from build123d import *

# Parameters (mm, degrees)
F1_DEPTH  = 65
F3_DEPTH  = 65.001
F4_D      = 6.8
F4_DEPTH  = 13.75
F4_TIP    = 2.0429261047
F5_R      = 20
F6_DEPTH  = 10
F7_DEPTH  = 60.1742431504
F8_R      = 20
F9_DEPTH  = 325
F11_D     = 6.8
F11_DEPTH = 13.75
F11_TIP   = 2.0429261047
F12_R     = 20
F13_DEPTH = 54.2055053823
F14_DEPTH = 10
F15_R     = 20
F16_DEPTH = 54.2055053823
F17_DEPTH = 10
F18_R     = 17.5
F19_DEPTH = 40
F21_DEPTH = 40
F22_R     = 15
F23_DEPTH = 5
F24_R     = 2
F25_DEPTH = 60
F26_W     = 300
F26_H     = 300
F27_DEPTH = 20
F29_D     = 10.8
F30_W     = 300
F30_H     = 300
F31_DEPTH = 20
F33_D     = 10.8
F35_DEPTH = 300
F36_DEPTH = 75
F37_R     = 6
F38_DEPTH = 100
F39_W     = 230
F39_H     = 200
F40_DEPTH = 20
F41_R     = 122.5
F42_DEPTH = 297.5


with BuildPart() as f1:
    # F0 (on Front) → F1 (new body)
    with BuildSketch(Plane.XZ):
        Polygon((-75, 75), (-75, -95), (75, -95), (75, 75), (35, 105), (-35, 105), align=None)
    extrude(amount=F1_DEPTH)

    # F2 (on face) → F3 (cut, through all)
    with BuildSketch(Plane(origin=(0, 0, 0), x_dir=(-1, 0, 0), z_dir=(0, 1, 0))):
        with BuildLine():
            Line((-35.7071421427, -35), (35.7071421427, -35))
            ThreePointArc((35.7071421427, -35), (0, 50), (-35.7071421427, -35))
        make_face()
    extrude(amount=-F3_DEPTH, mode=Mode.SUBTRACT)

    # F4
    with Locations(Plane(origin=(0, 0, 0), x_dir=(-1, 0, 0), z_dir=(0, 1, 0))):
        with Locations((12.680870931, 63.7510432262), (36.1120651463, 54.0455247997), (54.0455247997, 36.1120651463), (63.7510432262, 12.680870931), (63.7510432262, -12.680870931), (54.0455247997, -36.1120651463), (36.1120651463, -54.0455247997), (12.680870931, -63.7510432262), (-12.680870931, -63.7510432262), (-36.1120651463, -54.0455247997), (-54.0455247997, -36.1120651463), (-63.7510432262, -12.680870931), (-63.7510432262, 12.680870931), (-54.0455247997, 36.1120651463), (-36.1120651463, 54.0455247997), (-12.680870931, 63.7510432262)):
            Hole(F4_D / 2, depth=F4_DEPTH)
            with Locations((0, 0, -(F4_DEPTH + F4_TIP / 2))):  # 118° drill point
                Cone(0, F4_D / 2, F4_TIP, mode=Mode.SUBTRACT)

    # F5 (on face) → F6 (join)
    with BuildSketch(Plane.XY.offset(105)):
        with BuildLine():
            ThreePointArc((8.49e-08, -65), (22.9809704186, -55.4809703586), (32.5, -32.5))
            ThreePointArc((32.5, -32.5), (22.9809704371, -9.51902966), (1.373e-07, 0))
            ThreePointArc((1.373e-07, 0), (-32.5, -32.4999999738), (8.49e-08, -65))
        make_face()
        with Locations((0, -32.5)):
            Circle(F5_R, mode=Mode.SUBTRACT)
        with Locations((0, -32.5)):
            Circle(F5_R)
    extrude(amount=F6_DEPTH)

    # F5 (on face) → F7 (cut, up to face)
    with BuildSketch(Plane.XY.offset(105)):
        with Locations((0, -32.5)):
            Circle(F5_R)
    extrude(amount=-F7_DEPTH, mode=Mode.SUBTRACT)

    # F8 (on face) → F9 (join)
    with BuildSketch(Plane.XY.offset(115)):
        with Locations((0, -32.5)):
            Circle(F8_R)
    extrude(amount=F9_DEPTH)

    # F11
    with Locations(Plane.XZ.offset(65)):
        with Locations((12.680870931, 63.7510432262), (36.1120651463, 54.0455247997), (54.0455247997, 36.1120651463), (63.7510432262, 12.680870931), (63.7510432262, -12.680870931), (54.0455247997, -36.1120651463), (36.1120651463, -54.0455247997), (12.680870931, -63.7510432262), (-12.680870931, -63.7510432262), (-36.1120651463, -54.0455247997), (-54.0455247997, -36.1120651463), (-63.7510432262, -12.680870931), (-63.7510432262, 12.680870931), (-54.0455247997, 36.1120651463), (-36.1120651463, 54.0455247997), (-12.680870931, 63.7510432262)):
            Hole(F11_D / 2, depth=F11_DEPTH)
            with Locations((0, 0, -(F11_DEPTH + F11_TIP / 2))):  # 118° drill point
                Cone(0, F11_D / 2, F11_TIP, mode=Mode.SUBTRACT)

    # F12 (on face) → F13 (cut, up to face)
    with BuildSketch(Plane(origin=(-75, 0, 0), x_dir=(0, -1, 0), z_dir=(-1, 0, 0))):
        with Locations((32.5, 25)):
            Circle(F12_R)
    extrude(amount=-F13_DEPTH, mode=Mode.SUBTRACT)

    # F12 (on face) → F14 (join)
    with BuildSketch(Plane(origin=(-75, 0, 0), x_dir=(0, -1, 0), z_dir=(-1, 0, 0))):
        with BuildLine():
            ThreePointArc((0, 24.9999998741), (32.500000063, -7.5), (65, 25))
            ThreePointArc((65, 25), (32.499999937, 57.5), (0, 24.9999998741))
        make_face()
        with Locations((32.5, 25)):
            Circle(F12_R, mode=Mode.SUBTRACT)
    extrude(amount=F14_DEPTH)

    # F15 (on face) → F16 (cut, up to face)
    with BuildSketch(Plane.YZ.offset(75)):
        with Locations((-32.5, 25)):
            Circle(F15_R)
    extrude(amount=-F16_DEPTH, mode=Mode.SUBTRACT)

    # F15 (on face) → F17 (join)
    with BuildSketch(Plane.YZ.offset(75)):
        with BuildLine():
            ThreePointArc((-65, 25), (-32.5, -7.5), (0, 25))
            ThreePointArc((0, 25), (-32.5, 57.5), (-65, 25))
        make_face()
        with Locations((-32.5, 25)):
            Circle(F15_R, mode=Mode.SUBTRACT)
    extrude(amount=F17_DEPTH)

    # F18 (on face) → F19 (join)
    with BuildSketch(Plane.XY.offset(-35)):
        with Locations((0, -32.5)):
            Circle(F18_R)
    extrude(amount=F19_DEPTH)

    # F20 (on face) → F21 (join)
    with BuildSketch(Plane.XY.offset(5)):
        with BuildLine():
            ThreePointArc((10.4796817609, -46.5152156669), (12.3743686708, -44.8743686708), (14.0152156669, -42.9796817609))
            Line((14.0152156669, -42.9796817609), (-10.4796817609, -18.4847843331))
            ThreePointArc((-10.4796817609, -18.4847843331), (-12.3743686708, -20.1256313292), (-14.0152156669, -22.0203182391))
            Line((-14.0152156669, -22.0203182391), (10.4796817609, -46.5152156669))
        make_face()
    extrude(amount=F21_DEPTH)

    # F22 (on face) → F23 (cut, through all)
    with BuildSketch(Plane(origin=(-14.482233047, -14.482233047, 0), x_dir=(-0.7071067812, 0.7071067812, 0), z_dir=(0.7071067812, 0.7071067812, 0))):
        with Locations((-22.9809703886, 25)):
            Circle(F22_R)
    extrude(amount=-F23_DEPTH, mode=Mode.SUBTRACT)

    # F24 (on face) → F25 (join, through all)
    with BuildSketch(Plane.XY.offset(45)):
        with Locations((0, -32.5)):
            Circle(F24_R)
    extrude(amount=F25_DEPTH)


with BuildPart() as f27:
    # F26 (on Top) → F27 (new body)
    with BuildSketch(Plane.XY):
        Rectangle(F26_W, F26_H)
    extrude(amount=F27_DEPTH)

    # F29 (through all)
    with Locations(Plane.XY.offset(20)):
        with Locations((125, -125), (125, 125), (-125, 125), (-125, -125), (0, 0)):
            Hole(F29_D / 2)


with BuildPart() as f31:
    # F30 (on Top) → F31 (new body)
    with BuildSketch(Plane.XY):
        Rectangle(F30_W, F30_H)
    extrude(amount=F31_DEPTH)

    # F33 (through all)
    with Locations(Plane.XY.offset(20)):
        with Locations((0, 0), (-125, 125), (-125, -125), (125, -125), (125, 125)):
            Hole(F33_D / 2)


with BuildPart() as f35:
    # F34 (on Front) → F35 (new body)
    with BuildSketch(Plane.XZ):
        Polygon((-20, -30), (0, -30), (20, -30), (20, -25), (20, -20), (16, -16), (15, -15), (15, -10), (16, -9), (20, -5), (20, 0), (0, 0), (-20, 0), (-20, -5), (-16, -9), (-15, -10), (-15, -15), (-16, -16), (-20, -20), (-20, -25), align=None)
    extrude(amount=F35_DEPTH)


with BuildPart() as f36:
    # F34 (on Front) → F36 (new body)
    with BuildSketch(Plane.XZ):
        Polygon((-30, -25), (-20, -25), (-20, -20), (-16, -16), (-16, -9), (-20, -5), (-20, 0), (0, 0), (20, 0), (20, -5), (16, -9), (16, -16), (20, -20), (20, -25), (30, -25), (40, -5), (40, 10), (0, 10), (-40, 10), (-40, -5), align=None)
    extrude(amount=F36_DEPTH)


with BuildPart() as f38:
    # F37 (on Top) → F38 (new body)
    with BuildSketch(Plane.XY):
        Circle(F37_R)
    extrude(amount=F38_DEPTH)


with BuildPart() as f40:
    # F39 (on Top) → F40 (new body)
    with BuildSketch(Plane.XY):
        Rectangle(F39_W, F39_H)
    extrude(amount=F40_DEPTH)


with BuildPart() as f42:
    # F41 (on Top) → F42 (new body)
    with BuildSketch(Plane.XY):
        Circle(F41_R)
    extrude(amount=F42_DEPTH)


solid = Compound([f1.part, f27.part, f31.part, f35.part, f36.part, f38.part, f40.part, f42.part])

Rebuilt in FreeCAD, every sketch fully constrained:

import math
import FreeCAD as App
import Part
import Sketcher
from FreeCAD import Vector
Q = App.Units.Quantity


def add_polygon(sketch, points):
    """Adds a closed chain of lines whose ends are joined by coincident constraints."""
    first, n = sketch.GeometryCount, len(points)
    for a, b in zip(points, points[1:] + points[:1]):
        sketch.addGeometry(Part.LineSegment(App.Vector(*a, 0), App.Vector(*b, 0)), False)
    for i in range(n):
        sketch.addConstraint(Sketcher.Constraint("Coincident", first + i, 2, first + (i + 1) % n, 1))

doc = App.newDocument("Part")
params = doc.addObject("Spreadsheet::Sheet", "Params")
for row, (alias, value) in enumerate([
    ("sketch1_width", "150 mm"),
    ("sketch1_width2", "70 mm"),
    ("sketch1_height", "170 mm"),
    ("sketch1_length", "50 mm"),
    ("pad1_length", "65 mm"),
    ("sketch2_radius", "50 mm"),
    ("sketch3_diameter", "6.8 mm"),
    ("hole_diameter", "6.8 mm"),
    ("hole_depth", "13.75 mm"),
    ("sketch4_radius", "32.5 mm"),
    ("pad2_length", "10 mm"),
    ("sketch5_diameter", "40 mm"),
    ("pocket2_length", "60.174243 mm"),
    ("sketch6_diameter", "40 mm"),
    ("pad3_length", "325 mm"),
    ("sketch7_diameter", "6.8 mm"),
    ("hole2_diameter", "6.8 mm"),
    ("hole2_depth", "13.75 mm"),
    ("sketch8_diameter", "40 mm"),
    ("pocket3_length", "54.205505 mm"),
    ("sketch9_diameter", "65 mm"),
    ("sketch9_diameter2", "40 mm"),
    ("pad4_length", "10 mm"),
    ("sketch10_diameter", "40 mm"),
    ("pocket4_length", "54.205505 mm"),
    ("sketch11_diameter", "65 mm"),
    ("sketch11_diameter2", "40 mm"),
    ("pad5_length", "10 mm"),
    ("sketch12_diameter", "35 mm"),
    ("pad6_length", "40 mm"),
    ("sketch13_radius", "17.5 mm"),
    ("pad7_length", "40 mm"),
    ("sketch14_diameter", "30 mm"),
    ("pocket5_length", "5 mm"),
    ("sketch15_diameter", "4 mm"),
    ("sketch16_width", "300 mm"),
    ("pad9_length", "20 mm"),
    ("sketch17_diameter", "10.8 mm"),
    ("hole3_diameter", "10.8 mm"),
    ("sketch18_width", "300 mm"),
    ("pad10_length", "20 mm"),
    ("sketch19_diameter", "10.8 mm"),
    ("hole4_diameter", "10.8 mm"),
    ("sketch20_width", "40 mm"),
    ("sketch20_height", "10 mm"),
    ("sketch20_height2", "5 mm"),
    ("pad11_length", "300 mm"),
    ("sketch21_width", "10 mm"),
    ("sketch21_width2", "40 mm"),
    ("sketch21_width3", "80 mm"),
    ("sketch21_height", "5 mm"),
    ("sketch21_height2", "7 mm"),
    ("pad12_length", "75 mm"),
    ("sketch22_diameter", "12 mm"),
    ("pad13_length", "100 mm"),
    ("sketch23_width", "230 mm"),
    ("sketch23_height", "200 mm"),
    ("pad14_length", "20 mm"),
    ("sketch24_diameter", "245 mm"),
    ("pad15_length", "297.5 mm"),
], start=1):
    params.set(f"A{row}", alias)
    params.set(f"B{row}", "=" + value)
    params.setAlias(f"B{row}", alias)

body = doc.addObject("PartDesign::Body", "Body")

sketch1 = body.newObject("Sketcher::SketchObject", "Sketch")
sketch1.AttachmentSupport = (doc.getObject("XZ_Plane"), [""])
sketch1.MapMode = "FlatFace"
add_polygon(sketch1, [(-75, 75), (-75, -95), (75, -95), (75, 75), (35, 105), (-35, 105)])
sketch1.addConstraint([
    Sketcher.Constraint("Vertical", 0),
    Sketcher.Constraint("Horizontal", 1),
    Sketcher.Constraint("Vertical", 2),
    Sketcher.Constraint("Horizontal", 4),
    Sketcher.Constraint("Symmetric", 2, 2, 5, 2, -2),
    Sketcher.Constraint("Equal", 3, 5),
    Sketcher.Constraint("DistanceX", 1, 1, 1, 2, 150.0),
    Sketcher.Constraint("DistanceX", 4, 2, 4, 1, 70.0),
    Sketcher.Constraint("DistanceY", 0, 2, 0, 1, 170.0),
    Sketcher.Constraint("Distance", 3, 50.0),
    Sketcher.Constraint("DistanceY", 0, 2, -1, 1, 95.0),
])
sketch1.setExpression("Constraints[12]", "Params.sketch1_width")
sketch1.setExpression("Constraints[13]", "Params.sketch1_width2")
sketch1.setExpression("Constraints[14]", "Params.sketch1_height")
sketch1.setExpression("Constraints[15]", "Params.sketch1_length")
pad1 = body.newObject("PartDesign::Pad", "Pad")
pad1.Profile = sketch1
pad1.setExpression("Length", "Params.pad1_length")

sketch2 = body.newObject("Sketcher::SketchObject", "Sketch001")
sketch2.AttachmentSupport = (doc.getObject("XZ_Plane"), [""])
sketch2.MapMode = "FlatFace"
sketch2.addGeometry([
    Part.LineSegment(Vector(35.707142, -35, 0), Vector(-35.707142, -35, 0)),
    Part.ArcOfCircle(Part.Circle(Vector(0, 0, 0), Vector(0, 0, 1), 50), math.radians(-44.427004), math.radians(224.427004)),
], False)
sketch2.addConstraint([
    Sketcher.Constraint("Coincident", 0, 1, 1, 1),
    Sketcher.Constraint("Coincident", 1, 2, 0, 2),
    Sketcher.Constraint("Horizontal", 0),
    Sketcher.Constraint("Coincident", 1, 3, -1, 1),
    Sketcher.Constraint("Radius", 1, 50.0),
    Sketcher.Constraint("DistanceY", 0, 1, -1, 1, 35.0),
])
sketch2.setExpression("Constraints[4]", "Params.sketch2_radius")
pocket1 = body.newObject("PartDesign::Pocket", "Pocket")
pocket1.Profile = sketch2
pocket1.Type = "ThroughAll"
pocket1.Reversed = True

sketch3 = body.newObject("Sketcher::SketchObject", "Sketch002")
sketch3.AttachmentSupport = (doc.getObject("XZ_Plane"), [""])
sketch3.MapMode = "FlatFace"
sketch3.addGeometry([
    Part.Circle(Vector(-12.680871, 63.751043, 0), Vector(0, 0, 1), 3.4),
    Part.Circle(Vector(-36.112065, 54.045525, 0), Vector(0, 0, 1), 3.4),
    Part.Circle(Vector(-54.045525, 36.112065, 0), Vector(0, 0, 1), 3.4),
    Part.Circle(Vector(-63.751043, 12.680871, 0), Vector(0, 0, 1), 3.4),
    Part.Circle(Vector(-63.751043, -12.680871, 0), Vector(0, 0, 1), 3.4),
    Part.Circle(Vector(-54.045525, -36.112065, 0), Vector(0, 0, 1), 3.4),
    Part.Circle(Vector(-36.112065, -54.045525, 0), Vector(0, 0, 1), 3.4),
    Part.Circle(Vector(-12.680871, -63.751043, 0), Vector(0, 0, 1), 3.4),
    Part.Circle(Vector(12.680871, -63.751043, 0), Vector(0, 0, 1), 3.4),
    Part.Circle(Vector(36.112065, -54.045525, 0), Vector(0, 0, 1), 3.4),
    Part.Circle(Vector(54.045525, -36.112065, 0), Vector(0, 0, 1), 3.4),
    Part.Circle(Vector(63.751043, -12.680871, 0), Vector(0, 0, 1), 3.4),
    Part.Circle(Vector(63.751043, 12.680871, 0), Vector(0, 0, 1), 3.4),
    Part.Circle(Vector(54.045525, 36.112065, 0), Vector(0, 0, 1), 3.4),
    Part.Circle(Vector(36.112065, 54.045525, 0), Vector(0, 0, 1), 3.4),
    Part.Circle(Vector(12.680871, 63.751043, 0), Vector(0, 0, 1), 3.4),
], False)
sketch3.addConstraint([
    Sketcher.Constraint("Equal", 0, 1),
    Sketcher.Constraint("Equal", 1, 2),
    Sketcher.Constraint("Equal", 2, 3),
    Sketcher.Constraint("Equal", 3, 4),
    Sketcher.Constraint("Equal", 4, 5),
    Sketcher.Constraint("Equal", 5, 6),
    Sketcher.Constraint("Equal", 6, 7),
    Sketcher.Constraint("Equal", 7, 8),
    Sketcher.Constraint("Equal", 8, 9),
    Sketcher.Constraint("Equal", 9, 10),
    Sketcher.Constraint("Equal", 10, 11),
    Sketcher.Constraint("Equal", 11, 12),
    Sketcher.Constraint("Equal", 12, 13),
    Sketcher.Constraint("Equal", 13, 14),
    Sketcher.Constraint("Equal", 14, 15),
    Sketcher.Constraint("Symmetric", 0, 3, 8, 3, -1, 1),
    Sketcher.Constraint("Symmetric", 1, 3, 9, 3, -1, 1),
    Sketcher.Constraint("Symmetric", 2, 3, 10, 3, -1, 1),
    Sketcher.Constraint("Symmetric", 3, 3, 11, 3, -1, 1),
    Sketcher.Constraint("Symmetric", 4, 3, 12, 3, -1, 1),
    Sketcher.Constraint("Symmetric", 5, 3, 13, 3, -1, 1),
    Sketcher.Constraint("Symmetric", 6, 3, 14, 3, -1, 1),
    Sketcher.Constraint("Symmetric", 7, 3, 15, 3, -1, 1),
    Sketcher.Constraint("Symmetric", 7, 3, 8, 3, -2),
    Sketcher.Constraint("Symmetric", 6, 3, 9, 3, -2),
    Sketcher.Constraint("Symmetric", 5, 3, 10, 3, -2),
    Sketcher.Constraint("Symmetric", 4, 3, 11, 3, -2),
    Sketcher.Constraint("Diameter", 0, 6.8),
    Sketcher.Constraint("DistanceX", 0, 3, -1, 1, 12.680871),
    Sketcher.Constraint("DistanceY", -1, 1, 3, 3, 12.680871),
    Sketcher.Constraint("DistanceY", 1, 3, 0, 3, 9.705518),
    Sketcher.Constraint("DistanceX", 2, 3, 1, 3, 17.93346),
    Sketcher.Constraint("DistanceY", 2, 3, 1, 3, 17.93346),
    Sketcher.Constraint("DistanceX", 3, 3, 2, 3, 9.705518),
    Sketcher.Constraint("DistanceY", 5, 3, 2, 3, 72.22413),
    Sketcher.Constraint("DistanceX", 6, 3, 9, 3, 72.22413),
])
sketch3.setExpression("Constraints[27]", "Params.sketch3_diameter")
doc.recompute()
hole = body.newObject("PartDesign::Hole", "Hole")
hole.Profile = sketch3
hole.ThreadType = "None"
hole.setExpression("Diameter", "Params.hole_diameter")
hole.DepthType = "Dimension"
hole.setExpression("Depth", "Params.hole_depth")
hole.DrillPoint = "Angled"
hole.DrillPointAngle = 118
hole.Reversed = True

sketch4 = body.newObject("Sketcher::SketchObject", "Sketch003")
sketch4.AttachmentSupport = (doc.getObject("XY_Plane"), [""])
sketch4.MapMode = "FlatFace"
sketch4.AttachmentOffset = App.Placement(Vector(0, 0, 105), App.Rotation())
sketch4.addGeometry([
    Part.ArcOfCircle(Part.Circle(Vector(0, -32.5, 0), Vector(0, 0, 1), 32.5), math.radians(-90), math.radians(0)),
    Part.ArcOfCircle(Part.Circle(Vector(0, -32.5, 0), Vector(0, 0, 1), 32.5), math.radians(0), math.radians(90)),
    Part.ArcOfCircle(Part.Circle(Vector(0, -32.5, 0), Vector(0, 0, 1), 32.5), math.radians(90), math.radians(270)),
], False)
sketch4.addConstraint([
    Sketcher.Constraint("Tangent", 0, 2, 1, 1),
    Sketcher.Constraint("Tangent", 1, 2, 2, 1),
    Sketcher.Constraint("Tangent", 2, 2, 0, 1),
    Sketcher.Constraint("Coincident", 1, 2, -1, 1),
    Sketcher.Constraint("PointOnObject", 0, 3, -2),
    Sketcher.Constraint("PointOnObject", 2, 2, -2),
    Sketcher.Constraint("Horizontal", 2, 3, 0, 2),
    Sketcher.Constraint("Radius", 0, 32.5),
])
sketch4.setExpression("Constraints[7]", "Params.sketch4_radius")
pad2 = body.newObject("PartDesign::Pad", "Pad001")
pad2.Profile = sketch4
pad2.setExpression("Length", "Params.pad2_length")

sketch5 = body.newObject("Sketcher::SketchObject", "Sketch004")
sketch5.AttachmentSupport = (doc.getObject("XY_Plane"), [""])
sketch5.MapMode = "FlatFace"
sketch5.AttachmentOffset = App.Placement(Vector(0, 0, 105), App.Rotation())
sketch5.addGeometry(Part.Circle(Vector(0, -32.5, 0), Vector(0, 0, 1), 20), False)
sketch5.addConstraint([
    Sketcher.Constraint("PointOnObject", 0, 3, -2),
    Sketcher.Constraint("Diameter", 0, 40.0),
    Sketcher.Constraint("DistanceY", 0, 3, -1, 1, 32.5),
])
sketch5.setExpression("Constraints[1]", "Params.sketch5_diameter")
pocket2 = body.newObject("PartDesign::Pocket", "Pocket001")
pocket2.Profile = sketch5
pocket2.setExpression("Length", "Params.pocket2_length")

sketch6 = body.newObject("Sketcher::SketchObject", "Sketch005")
sketch6.AttachmentSupport = (doc.getObject("XY_Plane"), [""])
sketch6.MapMode = "FlatFace"
sketch6.AttachmentOffset = App.Placement(Vector(0, 0, 115), App.Rotation())
sketch6.addGeometry(Part.Circle(Vector(0, -32.5, 0), Vector(0, 0, 1), 20), False)
sketch6.addConstraint([
    Sketcher.Constraint("PointOnObject", 0, 3, -2),
    Sketcher.Constraint("Diameter", 0, 40.0),
    Sketcher.Constraint("DistanceY", 0, 3, -1, 1, 32.5),
])
sketch6.setExpression("Constraints[1]", "Params.sketch6_diameter")
pad3 = body.newObject("PartDesign::Pad", "Pad002")
pad3.Profile = sketch6
pad3.setExpression("Length", "Params.pad3_length")

sketch7 = body.newObject("Sketcher::SketchObject", "Sketch006")
sketch7.AttachmentSupport = (doc.getObject("XZ_Plane"), [""])
sketch7.MapMode = "FlatFace"
sketch7.AttachmentOffset = App.Placement(Vector(0, 0, 65), App.Rotation())
sketch7.addGeometry([
    Part.Circle(Vector(12.680871, 63.751043, 0), Vector(0, 0, 1), 3.4),
    Part.Circle(Vector(36.112065, 54.045525, 0), Vector(0, 0, 1), 3.4),
    Part.Circle(Vector(54.045525, 36.112065, 0), Vector(0, 0, 1), 3.4),
    Part.Circle(Vector(63.751043, 12.680871, 0), Vector(0, 0, 1), 3.4),
    Part.Circle(Vector(63.751043, -12.680871, 0), Vector(0, 0, 1), 3.4),
    Part.Circle(Vector(54.045525, -36.112065, 0), Vector(0, 0, 1), 3.4),
    Part.Circle(Vector(36.112065, -54.045525, 0), Vector(0, 0, 1), 3.4),
    Part.Circle(Vector(12.680871, -63.751043, 0), Vector(0, 0, 1), 3.4),
    Part.Circle(Vector(-12.680871, -63.751043, 0), Vector(0, 0, 1), 3.4),
    Part.Circle(Vector(-36.112065, -54.045525, 0), Vector(0, 0, 1), 3.4),
    Part.Circle(Vector(-54.045525, -36.112065, 0), Vector(0, 0, 1), 3.4),
    Part.Circle(Vector(-63.751043, -12.680871, 0), Vector(0, 0, 1), 3.4),
    Part.Circle(Vector(-63.751043, 12.680871, 0), Vector(0, 0, 1), 3.4),
    Part.Circle(Vector(-54.045525, 36.112065, 0), Vector(0, 0, 1), 3.4),
    Part.Circle(Vector(-36.112065, 54.045525, 0), Vector(0, 0, 1), 3.4),
    Part.Circle(Vector(-12.680871, 63.751043, 0), Vector(0, 0, 1), 3.4),
], False)
sketch7.addConstraint([
    Sketcher.Constraint("Equal", 0, 1),
    Sketcher.Constraint("Equal", 1, 2),
    Sketcher.Constraint("Equal", 2, 3),
    Sketcher.Constraint("Equal", 3, 4),
    Sketcher.Constraint("Equal", 4, 5),
    Sketcher.Constraint("Equal", 5, 6),
    Sketcher.Constraint("Equal", 6, 7),
    Sketcher.Constraint("Equal", 7, 8),
    Sketcher.Constraint("Equal", 8, 9),
    Sketcher.Constraint("Equal", 9, 10),
    Sketcher.Constraint("Equal", 10, 11),
    Sketcher.Constraint("Equal", 11, 12),
    Sketcher.Constraint("Equal", 12, 13),
    Sketcher.Constraint("Equal", 13, 14),
    Sketcher.Constraint("Equal", 14, 15),
    Sketcher.Constraint("Symmetric", 0, 3, 8, 3, -1, 1),
    Sketcher.Constraint("Symmetric", 1, 3, 9, 3, -1, 1),
    Sketcher.Constraint("Symmetric", 2, 3, 10, 3, -1, 1),
    Sketcher.Constraint("Symmetric", 3, 3, 11, 3, -1, 1),
    Sketcher.Constraint("Symmetric", 4, 3, 12, 3, -1, 1),
    Sketcher.Constraint("Symmetric", 5, 3, 13, 3, -1, 1),
    Sketcher.Constraint("Symmetric", 6, 3, 14, 3, -1, 1),
    Sketcher.Constraint("Symmetric", 7, 3, 15, 3, -1, 1),
    Sketcher.Constraint("Symmetric", 7, 3, 8, 3, -2),
    Sketcher.Constraint("Symmetric", 6, 3, 9, 3, -2),
    Sketcher.Constraint("Symmetric", 5, 3, 10, 3, -2),
    Sketcher.Constraint("Symmetric", 4, 3, 11, 3, -2),
    Sketcher.Constraint("Diameter", 0, 6.8),
    Sketcher.Constraint("DistanceX", -1, 1, 0, 3, 12.680871),
    Sketcher.Constraint("DistanceY", -1, 1, 3, 3, 12.680871),
    Sketcher.Constraint("DistanceY", 1, 3, 0, 3, 9.705518),
    Sketcher.Constraint("DistanceX", 1, 3, 2, 3, 17.93346),
    Sketcher.Constraint("DistanceY", 2, 3, 1, 3, 17.93346),
    Sketcher.Constraint("DistanceX", 2, 3, 3, 3, 9.705518),
    Sketcher.Constraint("DistanceY", 5, 3, 2, 3, 72.22413),
    Sketcher.Constraint("DistanceX", 9, 3, 6, 3, 72.22413),
])
sketch7.setExpression("Constraints[27]", "Params.sketch7_diameter")
doc.recompute()
hole2 = body.newObject("PartDesign::Hole", "Hole001")
hole2.Profile = sketch7
hole2.ThreadType = "None"
hole2.setExpression("Diameter", "Params.hole2_diameter")
hole2.DepthType = "Dimension"
hole2.setExpression("Depth", "Params.hole2_depth")
hole2.DrillPoint = "Angled"
hole2.DrillPointAngle = 118

sketch8 = body.newObject("Sketcher::SketchObject", "Sketch007")
sketch8.AttachmentSupport = (doc.getObject("YZ_Plane"), [""])
sketch8.MapMode = "FlatFace"
sketch8.AttachmentOffset = App.Placement(Vector(0, 0, -75), App.Rotation())
sketch8.addGeometry(Part.Circle(Vector(-32.5, 25, 0), Vector(0, 0, 1), 20), False)
sketch8.addConstraint([
    Sketcher.Constraint("Diameter", 0, 40.0),
    Sketcher.Constraint("DistanceY", -1, 1, 0, 3, 25.0),
    Sketcher.Constraint("DistanceX", 0, 3, -1, 1, 32.5),
])
sketch8.setExpression("Constraints[0]", "Params.sketch8_diameter")
pocket3 = body.newObject("PartDesign::Pocket", "Pocket002")
pocket3.Profile = sketch8
pocket3.setExpression("Length", "Params.pocket3_length")
pocket3.Reversed = True

sketch9 = body.newObject("Sketcher::SketchObject", "Sketch008")
sketch9.AttachmentSupport = (doc.getObject("YZ_Plane"), [""])
sketch9.MapMode = "FlatFace"
sketch9.AttachmentOffset = App.Placement(Vector(0, 0, -75), App.Rotation())
sketch9.addGeometry([
    Part.Circle(Vector(-32.5, 25, 0), Vector(0, 0, 1), 32.5),
    Part.Circle(Vector(-32.5, 25, 0), Vector(0, 0, 1), 20),
], False)
sketch9.addConstraint([
    Sketcher.Constraint("Coincident", 1, 3, 0, 3),
    Sketcher.Constraint("Diameter", 0, 65.0),
    Sketcher.Constraint("Diameter", 1, 40.0),
    Sketcher.Constraint("DistanceY", -1, 1, 0, 3, 25.0),
    Sketcher.Constraint("DistanceX", 0, 3, -1, 1, 32.5),
])
sketch9.setExpression("Constraints[1]", "Params.sketch9_diameter")
sketch9.setExpression("Constraints[2]", "Params.sketch9_diameter2")
pad4 = body.newObject("PartDesign::Pad", "Pad003")
pad4.Profile = sketch9
pad4.setExpression("Length", "Params.pad4_length")
pad4.Reversed = True

sketch10 = body.newObject("Sketcher::SketchObject", "Sketch009")
sketch10.AttachmentSupport = (doc.getObject("YZ_Plane"), [""])
sketch10.MapMode = "FlatFace"
sketch10.AttachmentOffset = App.Placement(Vector(0, 0, 75), App.Rotation())
sketch10.addGeometry(Part.Circle(Vector(-32.5, 25, 0), Vector(0, 0, 1), 20), False)
sketch10.addConstraint([
    Sketcher.Constraint("Diameter", 0, 40.0),
    Sketcher.Constraint("DistanceY", -1, 1, 0, 3, 25.0),
    Sketcher.Constraint("DistanceX", 0, 3, -1, 1, 32.5),
])
sketch10.setExpression("Constraints[0]", "Params.sketch10_diameter")
pocket4 = body.newObject("PartDesign::Pocket", "Pocket003")
pocket4.Profile = sketch10
pocket4.setExpression("Length", "Params.pocket4_length")

sketch11 = body.newObject("Sketcher::SketchObject", "Sketch010")
sketch11.AttachmentSupport = (doc.getObject("YZ_Plane"), [""])
sketch11.MapMode = "FlatFace"
sketch11.AttachmentOffset = App.Placement(Vector(0, 0, 75), App.Rotation())
sketch11.addGeometry([
    Part.Circle(Vector(-32.5, 25, 0), Vector(0, 0, 1), 32.5),
    Part.Circle(Vector(-32.5, 25, 0), Vector(0, 0, 1), 20),
], False)
sketch11.addConstraint([
    Sketcher.Constraint("Coincident", 1, 3, 0, 3),
    Sketcher.Constraint("Diameter", 0, 65.0),
    Sketcher.Constraint("Diameter", 1, 40.0),
    Sketcher.Constraint("DistanceY", -1, 1, 0, 3, 25.0),
    Sketcher.Constraint("DistanceX", 0, 3, -1, 1, 32.5),
])
sketch11.setExpression("Constraints[1]", "Params.sketch11_diameter")
sketch11.setExpression("Constraints[2]", "Params.sketch11_diameter2")
pad5 = body.newObject("PartDesign::Pad", "Pad004")
pad5.Profile = sketch11
pad5.setExpression("Length", "Params.pad5_length")

sketch12 = body.newObject("Sketcher::SketchObject", "Sketch011")
sketch12.AttachmentSupport = (doc.getObject("XY_Plane"), [""])
sketch12.MapMode = "FlatFace"
sketch12.AttachmentOffset = App.Placement(Vector(0, 0, -35), App.Rotation())
sketch12.addGeometry(Part.Circle(Vector(0, -32.5, 0), Vector(0, 0, 1), 17.5), False)
sketch12.addConstraint([
    Sketcher.Constraint("PointOnObject", 0, 3, -2),
    Sketcher.Constraint("Diameter", 0, 35.0),
    Sketcher.Constraint("DistanceY", 0, 3, -1, 1, 32.5),
])
sketch12.setExpression("Constraints[1]", "Params.sketch12_diameter")
pad6 = body.newObject("PartDesign::Pad", "Pad005")
pad6.Profile = sketch12
pad6.setExpression("Length", "Params.pad6_length")

sketch13 = body.newObject("Sketcher::SketchObject", "Sketch012")
sketch13.AttachmentSupport = (doc.getObject("XY_Plane"), [""])
sketch13.MapMode = "FlatFace"
sketch13.AttachmentOffset = App.Placement(Vector(0, 0, 5), App.Rotation())
sketch13.addGeometry([
    Part.ArcOfCircle(Part.Circle(Vector(0, -32.5, 0), Vector(0, 0, 1), 17.5), math.radians(-53.213211), math.radians(-36.786789)),
    Part.LineSegment(Vector(14.015216, -42.979682, 0), Vector(-10.479682, -18.484784, 0)),
    Part.ArcOfCircle(Part.Circle(Vector(0, -32.5, 0), Vector(0, 0, 1), 17.5), math.radians(126.786789), math.radians(143.213211)),
    Part.LineSegment(Vector(-14.015216, -22.020318, 0), Vector(10.479682, -46.515216, 0)),
], False)
sketch13.addConstraint([
    Sketcher.Constraint("Coincident", 0, 2, 1, 1),
    Sketcher.Constraint("Coincident", 1, 2, 2, 1),
    Sketcher.Constraint("Coincident", 2, 2, 3, 1),
    Sketcher.Constraint("Coincident", 3, 2, 0, 1),
    Sketcher.Constraint("Coincident", 2, 3, 0, 3),
    Sketcher.Constraint("Equal", 0, 2),
    Sketcher.Constraint("PointOnObject", 0, 3, -2),
    Sketcher.Constraint("Parallel", 1, 3),
    Sketcher.Constraint("Equal", 1, 3),
    Sketcher.Constraint("Radius", 0, 17.5),
    Sketcher.Constraint("Angle", 1, Q("135 deg")),
    Sketcher.Constraint("DistanceY", 0, 3, -1, 1, 32.5),
    Sketcher.Constraint("DistanceY", 0, 2, -1, 1, 42.979682),
])
sketch13.setExpression("Constraints[9]", "Params.sketch13_radius")
pad7 = body.newObject("PartDesign::Pad", "Pad006")
pad7.Profile = sketch13
pad7.setExpression("Length", "Params.pad7_length")

sketch14 = body.newObject("Sketcher::SketchObject", "Sketch013")
sketch14.Placement = App.Placement(Vector(-14.482233, -14.482233, 0), App.Rotation(Vector(-0.707106781, 0.707106781, 0), Vector(0, 0, 0.999999999), Vector(0.707106781, 0.707106781, 0), "ZXY"))
sketch14.addGeometry(Part.Circle(Vector(-22.98097, 25, 0), Vector(0, 0, 1), 15), False)
sketch14.addConstraint([
    Sketcher.Constraint("Diameter", 0, 30.0),
    Sketcher.Constraint("DistanceY", -1, 1, 0, 3, 25.0),
    Sketcher.Constraint("DistanceX", 0, 3, -1, 1, 22.98097),
])
sketch14.setExpression("Constraints[0]", "Params.sketch14_diameter")
pocket5 = body.newObject("PartDesign::Pocket", "Pocket004")
pocket5.Profile = sketch14
pocket5.setExpression("Length", "Params.pocket5_length")

sketch15 = body.newObject("Sketcher::SketchObject", "Sketch014")
sketch15.AttachmentSupport = (doc.getObject("XY_Plane"), [""])
sketch15.MapMode = "FlatFace"
sketch15.AttachmentOffset = App.Placement(Vector(0, 0, 45), App.Rotation())
sketch15.addGeometry(Part.Circle(Vector(0, -32.5, 0), Vector(0, 0, 1), 2), False)
sketch15.addConstraint([
    Sketcher.Constraint("PointOnObject", 0, 3, -2),
    Sketcher.Constraint("Diameter", 0, 4.0),
    Sketcher.Constraint("DistanceY", 0, 3, -1, 1, 32.5),
])
sketch15.setExpression("Constraints[1]", "Params.sketch15_diameter")
pad8 = body.newObject("PartDesign::Pad", "Pad007")
pad8.Profile = sketch15
pad8.Type = "UpToLast"
body2 = doc.addObject("PartDesign::Body", "Body001")

sketch16 = body2.newObject("Sketcher::SketchObject", "Sketch015")
sketch16.AttachmentSupport = (doc.getObject("XY_Plane001"), [""])
sketch16.MapMode = "FlatFace"
add_polygon(sketch16, [(-150, 150), (-150, -150), (150, -150), (150, 150)])
sketch16.addConstraint([
    Sketcher.Constraint("Vertical", 0),
    Sketcher.Constraint("Horizontal", 1),
    Sketcher.Constraint("Vertical", 2),
    Sketcher.Constraint("Horizontal", 3),
    Sketcher.Constraint("Symmetric", 0, 2, 2, 2, -1, 1),
    Sketcher.Constraint("Equal", 3, 0),
    Sketcher.Constraint("DistanceX", 1, 1, 1, 2, 300.0),
])
sketch16.setExpression("Constraints[10]", "Params.sketch16_width")
pad9 = body2.newObject("PartDesign::Pad", "Pad008")
pad9.Profile = sketch16
pad9.setExpression("Length", "Params.pad9_length")

sketch17 = body2.newObject("Sketcher::SketchObject", "Sketch016")
sketch17.AttachmentSupport = (doc.getObject("XY_Plane001"), [""])
sketch17.MapMode = "FlatFace"
sketch17.AttachmentOffset = App.Placement(Vector(0, 0, 20), App.Rotation())
sketch17.addGeometry([
    Part.Circle(Vector(125, -125, 0), Vector(0, 0, 1), 5.4),
    Part.Circle(Vector(125, 125, 0), Vector(0, 0, 1), 5.4),
    Part.Circle(Vector(-125, 125, 0), Vector(0, 0, 1), 5.4),
    Part.Circle(Vector(-125, -125, 0), Vector(0, 0, 1), 5.4),
    Part.Circle(Vector(0, 0, 0), Vector(0, 0, 1), 5.4),
], False)
sketch17.addConstraint([
    Sketcher.Constraint("Coincident", 4, 3, -1, 1),
    Sketcher.Constraint("Equal", 0, 1),
    Sketcher.Constraint("Equal", 1, 2),
    Sketcher.Constraint("Equal", 2, 3),
    Sketcher.Constraint("Equal", 3, 4),
    Sketcher.Constraint("Symmetric", 0, 3, 2, 3, -1, 1),
    Sketcher.Constraint("Symmetric", 1, 3, 3, 3, -1, 1),
    Sketcher.Constraint("Symmetric", 1, 3, 2, 3, -2),
    Sketcher.Constraint("Diameter", 0, 10.8),
    Sketcher.Constraint("DistanceX", -1, 1, 0, 3, 125.0),
    Sketcher.Constraint("DistanceY", 0, 3, -1, 1, 125.0),
])
sketch17.setExpression("Constraints[8]", "Params.sketch17_diameter")
doc.recompute()
hole3 = body2.newObject("PartDesign::Hole", "Hole002")
hole3.Profile = sketch17
hole3.ThreadType = "None"
hole3.setExpression("Diameter", "Params.hole3_diameter")
hole3.DepthType = "ThroughAll"
body3 = doc.addObject("PartDesign::Body", "Body002")

sketch18 = body3.newObject("Sketcher::SketchObject", "Sketch017")
sketch18.AttachmentSupport = (doc.getObject("XY_Plane002"), [""])
sketch18.MapMode = "FlatFace"
add_polygon(sketch18, [(-150, 150), (-150, -150), (150, -150), (150, 150)])
sketch18.addConstraint([
    Sketcher.Constraint("Vertical", 0),
    Sketcher.Constraint("Horizontal", 1),
    Sketcher.Constraint("Vertical", 2),
    Sketcher.Constraint("Horizontal", 3),
    Sketcher.Constraint("Symmetric", 0, 2, 2, 2, -1, 1),
    Sketcher.Constraint("Equal", 3, 0),
    Sketcher.Constraint("DistanceX", 1, 1, 1, 2, 300.0),
])
sketch18.setExpression("Constraints[10]", "Params.sketch18_width")
pad10 = body3.newObject("PartDesign::Pad", "Pad009")
pad10.Profile = sketch18
pad10.setExpression("Length", "Params.pad10_length")

sketch19 = body3.newObject("Sketcher::SketchObject", "Sketch018")
sketch19.AttachmentSupport = (doc.getObject("XY_Plane002"), [""])
sketch19.MapMode = "FlatFace"
sketch19.AttachmentOffset = App.Placement(Vector(0, 0, 20), App.Rotation())
sketch19.addGeometry([
    Part.Circle(Vector(0, 0, 0), Vector(0, 0, 1), 5.4),
    Part.Circle(Vector(-125, 125, 0), Vector(0, 0, 1), 5.4),
    Part.Circle(Vector(-125, -125, 0), Vector(0, 0, 1), 5.4),
    Part.Circle(Vector(125, -125, 0), Vector(0, 0, 1), 5.4),
    Part.Circle(Vector(125, 125, 0), Vector(0, 0, 1), 5.4),
], False)
sketch19.addConstraint([
    Sketcher.Constraint("Coincident", 0, 3, -1, 1),
    Sketcher.Constraint("Equal", 0, 1),
    Sketcher.Constraint("Equal", 1, 2),
    Sketcher.Constraint("Equal", 2, 3),
    Sketcher.Constraint("Equal", 3, 4),
    Sketcher.Constraint("Symmetric", 1, 3, 3, 3, -1, 1),
    Sketcher.Constraint("Symmetric", 2, 3, 4, 3, -1, 1),
    Sketcher.Constraint("Symmetric", 2, 3, 3, 3, -2),
    Sketcher.Constraint("Diameter", 0, 10.8),
    Sketcher.Constraint("DistanceX", 1, 3, -1, 1, 125.0),
    Sketcher.Constraint("DistanceY", -1, 1, 1, 3, 125.0),
])
sketch19.setExpression("Constraints[8]", "Params.sketch19_diameter")
doc.recompute()
hole4 = body3.newObject("PartDesign::Hole", "Hole003")
hole4.Profile = sketch19
hole4.ThreadType = "None"
hole4.setExpression("Diameter", "Params.hole4_diameter")
hole4.DepthType = "ThroughAll"
body4 = doc.addObject("PartDesign::Body", "Body003")

sketch20 = body4.newObject("Sketcher::SketchObject", "Sketch019")
sketch20.AttachmentSupport = (doc.getObject("XZ_Plane003"), [""])
sketch20.MapMode = "FlatFace"
add_polygon(sketch20, [(-20, -30), (20, -30), (20, -20), (15, -15), (15, -10), (20, -5), (20, 0), (-20, 0), (-20, -5), (-15, -10), (-15, -15), (-20, -20)])
sketch20.addConstraint([
    Sketcher.Constraint("Horizontal", 0),
    Sketcher.Constraint("Vertical", 1),
    Sketcher.Constraint("Vertical", 3),
    Sketcher.Constraint("Vertical", 5),
    Sketcher.Constraint("Horizontal", 6),
    Sketcher.Constraint("Vertical", 7),
    Sketcher.Constraint("Vertical", 9),
    Sketcher.Constraint("Vertical", 11),
    Sketcher.Constraint("Symmetric", 5, 2, 6, 2, -1, 1),
    Sketcher.Constraint("Symmetric", 3, 2, 8, 2, -2),
    Sketcher.Constraint("Symmetric", 1, 2, 10, 2, -2),
    Sketcher.Constraint("Perpendicular", 2, 4),
    Sketcher.Constraint("Perpendicular", 4, 8),
    Sketcher.Constraint("Perpendicular", 8, 10),
    Sketcher.Constraint("Horizontal", 4, 2, 7, 2),
    Sketcher.Constraint("Vertical", 1, 2, 4, 2),
    Sketcher.Constraint("Equal", 3, 5),
    Sketcher.Constraint("DistanceX", 0, 1, 0, 2, 40.0),
    Sketcher.Constraint("DistanceY", 1, 1, 1, 2, 10.0),
    Sketcher.Constraint("DistanceY", 3, 1, 3, 2, 5.0),
    Sketcher.Constraint("DistanceY", 0, 2, -1, 1, 30.0),
])
sketch20.setExpression("Constraints[29]", "Params.sketch20_width")
sketch20.setExpression("Constraints[30]", "Params.sketch20_height")
sketch20.setExpression("Constraints[31]", "Params.sketch20_height2")
pad11 = body4.newObject("PartDesign::Pad", "Pad010")
pad11.Profile = sketch20
pad11.setExpression("Length", "Params.pad11_length")
body5 = doc.addObject("PartDesign::Body", "Body004")

sketch21 = body5.newObject("Sketcher::SketchObject", "Sketch020")
sketch21.AttachmentSupport = (doc.getObject("XZ_Plane004"), [""])
sketch21.MapMode = "FlatFace"
add_polygon(sketch21, [(-30, -25), (-20, -25), (-20, -20), (-16, -16), (-16, -9), (-20, -5), (-20, 0), (20, 0), (20, -5), (16, -9), (16, -16), (20, -20), (20, -25), (30, -25), (40, -5), (40, 10), (-40, 10), (-40, -5)])
sketch21.addConstraint([
    Sketcher.Constraint("Horizontal", 0),
    Sketcher.Constraint("Vertical", 1),
    Sketcher.Constraint("Vertical", 3),
    Sketcher.Constraint("Vertical", 5),
    Sketcher.Constraint("Horizontal", 6),
    Sketcher.Constraint("Vertical", 7),
    Sketcher.Constraint("Vertical", 9),
    Sketcher.Constraint("Vertical", 11),
    Sketcher.Constraint("Horizontal", 12),
    Sketcher.Constraint("Vertical", 14),
    Sketcher.Constraint("Horizontal", 15),
    Sketcher.Constraint("Vertical", 16),
    Sketcher.Constraint("Symmetric", 5, 2, 6, 2, -1, 1),
    Sketcher.Constraint("Symmetric", 3, 2, 8, 2, -2),
    Sketcher.Constraint("Symmetric", 1, 2, 10, 2, -2),
    Sketcher.Constraint("Symmetric", 13, 2, 16, 2, -2),
    Sketcher.Constraint("Symmetric", 12, 2, 17, 2, -2),
    Sketcher.Constraint("Perpendicular", 2, 4),
    Sketcher.Constraint("Perpendicular", 4, 8),
    Sketcher.Constraint("Perpendicular", 8, 10),
    Sketcher.Constraint("Horizontal", 4, 2, 7, 2),
    Sketcher.Constraint("Horizontal", 7, 2, 13, 2),
    Sketcher.Constraint("Vertical", 1, 2, 4, 2),
    Sketcher.Constraint("Equal", 1, 5),
    Sketcher.Constraint("DistanceX", 0, 1, 0, 2, 10.0),
    Sketcher.Constraint("DistanceX", 6, 1, 6, 2, 40.0),
    Sketcher.Constraint("DistanceX", 15, 2, 15, 1, 80.0),
    Sketcher.Constraint("DistanceY", 1, 1, 1, 2, 5.0),
    Sketcher.Constraint("DistanceY", 3, 1, 3, 2, 7.0),
    Sketcher.Constraint("DistanceY", 14, 1, 14, 2, 15.0),
    Sketcher.Constraint("DistanceY", 0, 2, -1, 1, 25.0),
])
sketch21.setExpression("Constraints[42]", "Params.sketch21_width")
sketch21.setExpression("Constraints[43]", "Params.sketch21_width2")
sketch21.setExpression("Constraints[44]", "Params.sketch21_width3")
sketch21.setExpression("Constraints[45]", "Params.sketch21_height")
sketch21.setExpression("Constraints[46]", "Params.sketch21_height2")
pad12 = body5.newObject("PartDesign::Pad", "Pad011")
pad12.Profile = sketch21
pad12.setExpression("Length", "Params.pad12_length")
body6 = doc.addObject("PartDesign::Body", "Body005")

sketch22 = body6.newObject("Sketcher::SketchObject", "Sketch021")
sketch22.AttachmentSupport = (doc.getObject("XY_Plane005"), [""])
sketch22.MapMode = "FlatFace"
sketch22.addGeometry(Part.Circle(Vector(0, 0, 0), Vector(0, 0, 1), 6), False)
sketch22.addConstraint([
    Sketcher.Constraint("Coincident", 0, 3, -1, 1),
    Sketcher.Constraint("Diameter", 0, 12.0),
])
sketch22.setExpression("Constraints[1]", "Params.sketch22_diameter")
pad13 = body6.newObject("PartDesign::Pad", "Pad012")
pad13.Profile = sketch22
pad13.setExpression("Length", "Params.pad13_length")
body7 = doc.addObject("PartDesign::Body", "Body006")

sketch23 = body7.newObject("Sketcher::SketchObject", "Sketch022")
sketch23.AttachmentSupport = (doc.getObject("XY_Plane006"), [""])
sketch23.MapMode = "FlatFace"
add_polygon(sketch23, [(-115, 100), (-115, -100), (115, -100), (115, 100)])
sketch23.addConstraint([
    Sketcher.Constraint("Vertical", 0),
    Sketcher.Constraint("Horizontal", 1),
    Sketcher.Constraint("Vertical", 2),
    Sketcher.Constraint("Horizontal", 3),
    Sketcher.Constraint("Symmetric", 0, 2, 2, 2, -1, 1),
    Sketcher.Constraint("DistanceX", 1, 1, 1, 2, 230.0),
    Sketcher.Constraint("DistanceY", 0, 2, 0, 1, 200.0),
])
sketch23.setExpression("Constraints[9]", "Params.sketch23_width")
sketch23.setExpression("Constraints[10]", "Params.sketch23_height")
pad14 = body7.newObject("PartDesign::Pad", "Pad013")
pad14.Profile = sketch23
pad14.setExpression("Length", "Params.pad14_length")
body8 = doc.addObject("PartDesign::Body", "Body007")

sketch24 = body8.newObject("Sketcher::SketchObject", "Sketch023")
sketch24.AttachmentSupport = (doc.getObject("XY_Plane007"), [""])
sketch24.MapMode = "FlatFace"
sketch24.addGeometry(Part.Circle(Vector(0, 0, 0), Vector(0, 0, 1), 122.5), False)
sketch24.addConstraint([
    Sketcher.Constraint("Coincident", 0, 3, -1, 1),
    Sketcher.Constraint("Diameter", 0, 245.0),
])
sketch24.setExpression("Constraints[1]", "Params.sketch24_diameter")
pad15 = body8.newObject("PartDesign::Pad", "Pad014")
pad15.Profile = sketch24
pad15.setExpression("Length", "Params.pad15_length")

doc.recompute()
